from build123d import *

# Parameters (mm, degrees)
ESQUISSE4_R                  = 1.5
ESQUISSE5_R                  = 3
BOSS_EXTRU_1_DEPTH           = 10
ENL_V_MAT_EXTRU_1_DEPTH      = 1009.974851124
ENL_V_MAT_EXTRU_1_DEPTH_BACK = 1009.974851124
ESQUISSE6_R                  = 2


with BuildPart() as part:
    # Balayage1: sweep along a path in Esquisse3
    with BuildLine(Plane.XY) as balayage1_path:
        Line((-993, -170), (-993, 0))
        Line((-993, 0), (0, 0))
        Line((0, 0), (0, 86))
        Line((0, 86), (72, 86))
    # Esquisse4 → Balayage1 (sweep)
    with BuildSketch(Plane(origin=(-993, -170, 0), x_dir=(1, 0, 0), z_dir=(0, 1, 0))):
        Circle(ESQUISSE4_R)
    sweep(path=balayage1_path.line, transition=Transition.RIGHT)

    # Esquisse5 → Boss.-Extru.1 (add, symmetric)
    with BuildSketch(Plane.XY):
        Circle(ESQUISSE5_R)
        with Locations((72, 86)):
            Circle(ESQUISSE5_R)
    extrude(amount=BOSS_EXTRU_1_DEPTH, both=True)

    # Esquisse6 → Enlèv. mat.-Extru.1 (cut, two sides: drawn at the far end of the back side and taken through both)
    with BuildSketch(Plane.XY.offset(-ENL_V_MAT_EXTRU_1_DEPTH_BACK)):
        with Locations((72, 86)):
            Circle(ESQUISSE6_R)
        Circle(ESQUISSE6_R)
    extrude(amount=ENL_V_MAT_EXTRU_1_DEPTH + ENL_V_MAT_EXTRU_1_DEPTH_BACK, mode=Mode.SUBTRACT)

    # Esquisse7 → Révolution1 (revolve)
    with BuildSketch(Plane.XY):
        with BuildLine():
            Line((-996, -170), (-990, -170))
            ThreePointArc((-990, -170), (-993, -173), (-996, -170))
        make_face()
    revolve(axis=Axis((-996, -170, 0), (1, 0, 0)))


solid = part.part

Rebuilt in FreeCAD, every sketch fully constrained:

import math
import FreeCAD as App
import Part
import Sketcher
from FreeCAD import Vector
Q = App.Units.Quantity

doc = App.newDocument("Part")
body = doc.addObject("PartDesign::Body", "Body")

# Sketch on XZ plane
sketch1 = doc.addObject("Sketcher::SketchObject", "Sketch")
body.addObject(sketch1)
sketch1.AttachmentSupport = (doc.XZ_Plane, [""])
sketch1.MapMode = "FlatFace"
sketch1.AttachmentOffset = App.Placement(Vector(0, 0, 170), App.Rotation())
sketch1.addGeometry(Part.Circle(Vector(-993, 0, 0), Vector(0, 0, 1), 1.5), False)
sketch1.addConstraint(Sketcher.Constraint("PointOnObject", 0, 3, -1))
sketch1.addConstraint(Sketcher.Constraint("Diameter", 0, Q("3 mm")))
sketch1.addConstraint(Sketcher.Constraint("DistanceX", 0, 3, -1, 1, Q("993 mm")))

# Sketch on XY plane
sketch2 = doc.addObject("Sketcher::SketchObject", "Sketch001")
body.addObject(sketch2)
sketch2.AttachmentSupport = (doc.XY_Plane, [""])
sketch2.MapMode = "FlatFace"
sketch2.addGeometry(Part.LineSegment(Vector(-993, -170, 0), Vector(-993, 0, 0)), False)
sketch2.addGeometry(Part.LineSegment(Vector(-993, 0, 0), Vector(0, 0, 0)), False)
sketch2.addGeometry(Part.LineSegment(Vector(0, 0, 0), Vector(0, 86, 0)), False)
sketch2.addGeometry(Part.LineSegment(Vector(0, 86, 0), Vector(72, 86, 0)), False)
sketch2.addConstraint(Sketcher.Constraint("Coincident", 0, 2, 1, 1))
sketch2.addConstraint(Sketcher.Constraint("Coincident", 1, 2, 2, 1))
sketch2.addConstraint(Sketcher.Constraint("Coincident", 2, 2, 3, 1))
sketch2.addConstraint(Sketcher.Constraint("Vertical", 0))
sketch2.addConstraint(Sketcher.Constraint("Horizontal", 1))
sketch2.addConstraint(Sketcher.Constraint("Vertical", 2))
sketch2.addConstraint(Sketcher.Constraint("Horizontal", 3))
sketch2.addConstraint(Sketcher.Constraint("Coincident", 1, 2, -1, 1))
sketch2.addConstraint(Sketcher.Constraint("DistanceX", 1, 1, 1, 2, Q("993 mm")))
sketch2.addConstraint(Sketcher.Constraint("DistanceX", 3, 1, 3, 2, Q("72 mm")))
sketch2.addConstraint(Sketcher.Constraint("DistanceY", 0, 1, 0, 2, Q("170 mm")))
sketch2.addConstraint(Sketcher.Constraint("DistanceY", 2, 1, 2, 2, Q("86 mm")))
doc.recompute()

additivepipe = doc.addObject("PartDesign::AdditivePipe", "AdditivePipe")
body.addObject(additivepipe)
additivepipe.Profile = sketch1
additivepipe.Spine = (sketch2, ["Edge1", "Edge2", "Edge3", "Edge4"])
additivepipe.Transition = "Right corner"

# Sketch on XY plane
sketch3 = doc.addObject("Sketcher::SketchObject", "Sketch002")
body.addObject(sketch3)
sketch3.AttachmentSupport = (doc.XY_Plane, [""])
sketch3.MapMode = "FlatFace"
sketch3.addGeometry(Part.Circle(Vector(0, 0, 0), Vector(0, 0, 1), 3), False)
sketch3.addGeometry(Part.Circle(Vector(72, 86, 0), Vector(0, 0, 1), 3), False)
sketch3.addConstraint(Sketcher.Constraint("Coincident", 0, 3, -1, 1))
sketch3.addConstraint(Sketcher.Constraint("Equal", 0, 1))
sketch3.addConstraint(Sketcher.Constraint("Diameter", 0, Q("6 mm")))
sketch3.addConstraint(Sketcher.Constraint("DistanceX", -1, 1, 1, 3, Q("72 mm")))
sketch3.addConstraint(Sketcher.Constraint("DistanceY", -1, 1, 1, 3, Q("86 mm")))
pad1 = doc.addObject("PartDesign::Pad", "Pad")
body.addObject(pad1)
pad1.Profile = sketch3
pad1.Length = 20
pad1.Midplane = True

# Sketch on XY plane
sketch4 = doc.addObject("Sketcher::SketchObject", "Sketch003")
body.addObject(sketch4)
sketch4.AttachmentSupport = (doc.XY_Plane, [""])
sketch4.MapMode = "FlatFace"
sketch4.addGeometry(Part.Circle(Vector(72, 86, 0), Vector(0, 0, 1), 2), False)
sketch4.addGeometry(Part.Circle(Vector(0, 0, 0), Vector(0, 0, 1), 2), False)
sketch4.addConstraint(Sketcher.Constraint("Coincident", 1, 3, -1, 1))
sketch4.addConstraint(Sketcher.Constraint("Equal", 0, 1))
sketch4.addConstraint(Sketcher.Constraint("Diameter", 0, Q("4 mm")))
sketch4.addConstraint(Sketcher.Constraint("DistanceX", -1, 1, 0, 3, Q("72 mm")))
sketch4.addConstraint(Sketcher.Constraint("DistanceY", -1, 1, 0, 3, Q("86 mm")))
pocket1 = doc.addObject("PartDesign::Pocket", "Pocket")
body.addObject(pocket1)
pocket1.Profile = sketch4
pocket1.Type = "ThroughAll"
pocket1.Midplane = True

# Sketch on XY plane
sketch5 = doc.addObject("Sketcher::SketchObject", "Sketch004")
body.addObject(sketch5)
sketch5.AttachmentSupport = (doc.XY_Plane, [""])
sketch5.MapMode = "FlatFace"
sketch5.addGeometry(Part.LineSegment(Vector(-990, -170, 0), Vector(-996, -170, 0)), False)
sketch5.addGeometry(Part.ArcOfCircle(Part.Circle(Vector(-993, -170, 0), Vector(0, 0, 1), 3), math.radians(180), math.radians(360)), False)
sketch5.addGeometry(Part.LineSegment(Vector(-996, -170, 0), Vector(-990, -170, 0)), True)  # axis
sketch5.addConstraint(Sketcher.Constraint("Coincident", 0, 1, 1, 2))
sketch5.addConstraint(Sketcher.Constraint("Coincident", 1, 1, 0, 2))
sketch5.addConstraint(Sketcher.Constraint("Horizontal", 0))
sketch5.addConstraint(Sketcher.Constraint("Horizontal", 2))
sketch5.addConstraint(Sketcher.Constraint("Coincident", 2, 1, 1, 1))
sketch5.addConstraint(Sketcher.Constraint("Horizontal", 1, 3, 0, 1))
sketch5.addConstraint(Sketcher.Constraint("Equal", 0, 2))
sketch5.addConstraint(Sketcher.Constraint("Radius", 1, Q("3 mm")))
sketch5.addConstraint(Sketcher.Constraint("DistanceX", 1, 3, -1, 1, Q("993 mm")))
sketch5.addConstraint(Sketcher.Constraint("DistanceY", 1, 3, -1, 1, Q("170 mm")))
revolution = doc.addObject("PartDesign::Revolution", "Revolution")
body.addObject(revolution)
revolution.Profile = sketch5
revolution.ReferenceAxis = (sketch5, ["Axis0"])
revolution.Angle = 360

doc.recompute()
